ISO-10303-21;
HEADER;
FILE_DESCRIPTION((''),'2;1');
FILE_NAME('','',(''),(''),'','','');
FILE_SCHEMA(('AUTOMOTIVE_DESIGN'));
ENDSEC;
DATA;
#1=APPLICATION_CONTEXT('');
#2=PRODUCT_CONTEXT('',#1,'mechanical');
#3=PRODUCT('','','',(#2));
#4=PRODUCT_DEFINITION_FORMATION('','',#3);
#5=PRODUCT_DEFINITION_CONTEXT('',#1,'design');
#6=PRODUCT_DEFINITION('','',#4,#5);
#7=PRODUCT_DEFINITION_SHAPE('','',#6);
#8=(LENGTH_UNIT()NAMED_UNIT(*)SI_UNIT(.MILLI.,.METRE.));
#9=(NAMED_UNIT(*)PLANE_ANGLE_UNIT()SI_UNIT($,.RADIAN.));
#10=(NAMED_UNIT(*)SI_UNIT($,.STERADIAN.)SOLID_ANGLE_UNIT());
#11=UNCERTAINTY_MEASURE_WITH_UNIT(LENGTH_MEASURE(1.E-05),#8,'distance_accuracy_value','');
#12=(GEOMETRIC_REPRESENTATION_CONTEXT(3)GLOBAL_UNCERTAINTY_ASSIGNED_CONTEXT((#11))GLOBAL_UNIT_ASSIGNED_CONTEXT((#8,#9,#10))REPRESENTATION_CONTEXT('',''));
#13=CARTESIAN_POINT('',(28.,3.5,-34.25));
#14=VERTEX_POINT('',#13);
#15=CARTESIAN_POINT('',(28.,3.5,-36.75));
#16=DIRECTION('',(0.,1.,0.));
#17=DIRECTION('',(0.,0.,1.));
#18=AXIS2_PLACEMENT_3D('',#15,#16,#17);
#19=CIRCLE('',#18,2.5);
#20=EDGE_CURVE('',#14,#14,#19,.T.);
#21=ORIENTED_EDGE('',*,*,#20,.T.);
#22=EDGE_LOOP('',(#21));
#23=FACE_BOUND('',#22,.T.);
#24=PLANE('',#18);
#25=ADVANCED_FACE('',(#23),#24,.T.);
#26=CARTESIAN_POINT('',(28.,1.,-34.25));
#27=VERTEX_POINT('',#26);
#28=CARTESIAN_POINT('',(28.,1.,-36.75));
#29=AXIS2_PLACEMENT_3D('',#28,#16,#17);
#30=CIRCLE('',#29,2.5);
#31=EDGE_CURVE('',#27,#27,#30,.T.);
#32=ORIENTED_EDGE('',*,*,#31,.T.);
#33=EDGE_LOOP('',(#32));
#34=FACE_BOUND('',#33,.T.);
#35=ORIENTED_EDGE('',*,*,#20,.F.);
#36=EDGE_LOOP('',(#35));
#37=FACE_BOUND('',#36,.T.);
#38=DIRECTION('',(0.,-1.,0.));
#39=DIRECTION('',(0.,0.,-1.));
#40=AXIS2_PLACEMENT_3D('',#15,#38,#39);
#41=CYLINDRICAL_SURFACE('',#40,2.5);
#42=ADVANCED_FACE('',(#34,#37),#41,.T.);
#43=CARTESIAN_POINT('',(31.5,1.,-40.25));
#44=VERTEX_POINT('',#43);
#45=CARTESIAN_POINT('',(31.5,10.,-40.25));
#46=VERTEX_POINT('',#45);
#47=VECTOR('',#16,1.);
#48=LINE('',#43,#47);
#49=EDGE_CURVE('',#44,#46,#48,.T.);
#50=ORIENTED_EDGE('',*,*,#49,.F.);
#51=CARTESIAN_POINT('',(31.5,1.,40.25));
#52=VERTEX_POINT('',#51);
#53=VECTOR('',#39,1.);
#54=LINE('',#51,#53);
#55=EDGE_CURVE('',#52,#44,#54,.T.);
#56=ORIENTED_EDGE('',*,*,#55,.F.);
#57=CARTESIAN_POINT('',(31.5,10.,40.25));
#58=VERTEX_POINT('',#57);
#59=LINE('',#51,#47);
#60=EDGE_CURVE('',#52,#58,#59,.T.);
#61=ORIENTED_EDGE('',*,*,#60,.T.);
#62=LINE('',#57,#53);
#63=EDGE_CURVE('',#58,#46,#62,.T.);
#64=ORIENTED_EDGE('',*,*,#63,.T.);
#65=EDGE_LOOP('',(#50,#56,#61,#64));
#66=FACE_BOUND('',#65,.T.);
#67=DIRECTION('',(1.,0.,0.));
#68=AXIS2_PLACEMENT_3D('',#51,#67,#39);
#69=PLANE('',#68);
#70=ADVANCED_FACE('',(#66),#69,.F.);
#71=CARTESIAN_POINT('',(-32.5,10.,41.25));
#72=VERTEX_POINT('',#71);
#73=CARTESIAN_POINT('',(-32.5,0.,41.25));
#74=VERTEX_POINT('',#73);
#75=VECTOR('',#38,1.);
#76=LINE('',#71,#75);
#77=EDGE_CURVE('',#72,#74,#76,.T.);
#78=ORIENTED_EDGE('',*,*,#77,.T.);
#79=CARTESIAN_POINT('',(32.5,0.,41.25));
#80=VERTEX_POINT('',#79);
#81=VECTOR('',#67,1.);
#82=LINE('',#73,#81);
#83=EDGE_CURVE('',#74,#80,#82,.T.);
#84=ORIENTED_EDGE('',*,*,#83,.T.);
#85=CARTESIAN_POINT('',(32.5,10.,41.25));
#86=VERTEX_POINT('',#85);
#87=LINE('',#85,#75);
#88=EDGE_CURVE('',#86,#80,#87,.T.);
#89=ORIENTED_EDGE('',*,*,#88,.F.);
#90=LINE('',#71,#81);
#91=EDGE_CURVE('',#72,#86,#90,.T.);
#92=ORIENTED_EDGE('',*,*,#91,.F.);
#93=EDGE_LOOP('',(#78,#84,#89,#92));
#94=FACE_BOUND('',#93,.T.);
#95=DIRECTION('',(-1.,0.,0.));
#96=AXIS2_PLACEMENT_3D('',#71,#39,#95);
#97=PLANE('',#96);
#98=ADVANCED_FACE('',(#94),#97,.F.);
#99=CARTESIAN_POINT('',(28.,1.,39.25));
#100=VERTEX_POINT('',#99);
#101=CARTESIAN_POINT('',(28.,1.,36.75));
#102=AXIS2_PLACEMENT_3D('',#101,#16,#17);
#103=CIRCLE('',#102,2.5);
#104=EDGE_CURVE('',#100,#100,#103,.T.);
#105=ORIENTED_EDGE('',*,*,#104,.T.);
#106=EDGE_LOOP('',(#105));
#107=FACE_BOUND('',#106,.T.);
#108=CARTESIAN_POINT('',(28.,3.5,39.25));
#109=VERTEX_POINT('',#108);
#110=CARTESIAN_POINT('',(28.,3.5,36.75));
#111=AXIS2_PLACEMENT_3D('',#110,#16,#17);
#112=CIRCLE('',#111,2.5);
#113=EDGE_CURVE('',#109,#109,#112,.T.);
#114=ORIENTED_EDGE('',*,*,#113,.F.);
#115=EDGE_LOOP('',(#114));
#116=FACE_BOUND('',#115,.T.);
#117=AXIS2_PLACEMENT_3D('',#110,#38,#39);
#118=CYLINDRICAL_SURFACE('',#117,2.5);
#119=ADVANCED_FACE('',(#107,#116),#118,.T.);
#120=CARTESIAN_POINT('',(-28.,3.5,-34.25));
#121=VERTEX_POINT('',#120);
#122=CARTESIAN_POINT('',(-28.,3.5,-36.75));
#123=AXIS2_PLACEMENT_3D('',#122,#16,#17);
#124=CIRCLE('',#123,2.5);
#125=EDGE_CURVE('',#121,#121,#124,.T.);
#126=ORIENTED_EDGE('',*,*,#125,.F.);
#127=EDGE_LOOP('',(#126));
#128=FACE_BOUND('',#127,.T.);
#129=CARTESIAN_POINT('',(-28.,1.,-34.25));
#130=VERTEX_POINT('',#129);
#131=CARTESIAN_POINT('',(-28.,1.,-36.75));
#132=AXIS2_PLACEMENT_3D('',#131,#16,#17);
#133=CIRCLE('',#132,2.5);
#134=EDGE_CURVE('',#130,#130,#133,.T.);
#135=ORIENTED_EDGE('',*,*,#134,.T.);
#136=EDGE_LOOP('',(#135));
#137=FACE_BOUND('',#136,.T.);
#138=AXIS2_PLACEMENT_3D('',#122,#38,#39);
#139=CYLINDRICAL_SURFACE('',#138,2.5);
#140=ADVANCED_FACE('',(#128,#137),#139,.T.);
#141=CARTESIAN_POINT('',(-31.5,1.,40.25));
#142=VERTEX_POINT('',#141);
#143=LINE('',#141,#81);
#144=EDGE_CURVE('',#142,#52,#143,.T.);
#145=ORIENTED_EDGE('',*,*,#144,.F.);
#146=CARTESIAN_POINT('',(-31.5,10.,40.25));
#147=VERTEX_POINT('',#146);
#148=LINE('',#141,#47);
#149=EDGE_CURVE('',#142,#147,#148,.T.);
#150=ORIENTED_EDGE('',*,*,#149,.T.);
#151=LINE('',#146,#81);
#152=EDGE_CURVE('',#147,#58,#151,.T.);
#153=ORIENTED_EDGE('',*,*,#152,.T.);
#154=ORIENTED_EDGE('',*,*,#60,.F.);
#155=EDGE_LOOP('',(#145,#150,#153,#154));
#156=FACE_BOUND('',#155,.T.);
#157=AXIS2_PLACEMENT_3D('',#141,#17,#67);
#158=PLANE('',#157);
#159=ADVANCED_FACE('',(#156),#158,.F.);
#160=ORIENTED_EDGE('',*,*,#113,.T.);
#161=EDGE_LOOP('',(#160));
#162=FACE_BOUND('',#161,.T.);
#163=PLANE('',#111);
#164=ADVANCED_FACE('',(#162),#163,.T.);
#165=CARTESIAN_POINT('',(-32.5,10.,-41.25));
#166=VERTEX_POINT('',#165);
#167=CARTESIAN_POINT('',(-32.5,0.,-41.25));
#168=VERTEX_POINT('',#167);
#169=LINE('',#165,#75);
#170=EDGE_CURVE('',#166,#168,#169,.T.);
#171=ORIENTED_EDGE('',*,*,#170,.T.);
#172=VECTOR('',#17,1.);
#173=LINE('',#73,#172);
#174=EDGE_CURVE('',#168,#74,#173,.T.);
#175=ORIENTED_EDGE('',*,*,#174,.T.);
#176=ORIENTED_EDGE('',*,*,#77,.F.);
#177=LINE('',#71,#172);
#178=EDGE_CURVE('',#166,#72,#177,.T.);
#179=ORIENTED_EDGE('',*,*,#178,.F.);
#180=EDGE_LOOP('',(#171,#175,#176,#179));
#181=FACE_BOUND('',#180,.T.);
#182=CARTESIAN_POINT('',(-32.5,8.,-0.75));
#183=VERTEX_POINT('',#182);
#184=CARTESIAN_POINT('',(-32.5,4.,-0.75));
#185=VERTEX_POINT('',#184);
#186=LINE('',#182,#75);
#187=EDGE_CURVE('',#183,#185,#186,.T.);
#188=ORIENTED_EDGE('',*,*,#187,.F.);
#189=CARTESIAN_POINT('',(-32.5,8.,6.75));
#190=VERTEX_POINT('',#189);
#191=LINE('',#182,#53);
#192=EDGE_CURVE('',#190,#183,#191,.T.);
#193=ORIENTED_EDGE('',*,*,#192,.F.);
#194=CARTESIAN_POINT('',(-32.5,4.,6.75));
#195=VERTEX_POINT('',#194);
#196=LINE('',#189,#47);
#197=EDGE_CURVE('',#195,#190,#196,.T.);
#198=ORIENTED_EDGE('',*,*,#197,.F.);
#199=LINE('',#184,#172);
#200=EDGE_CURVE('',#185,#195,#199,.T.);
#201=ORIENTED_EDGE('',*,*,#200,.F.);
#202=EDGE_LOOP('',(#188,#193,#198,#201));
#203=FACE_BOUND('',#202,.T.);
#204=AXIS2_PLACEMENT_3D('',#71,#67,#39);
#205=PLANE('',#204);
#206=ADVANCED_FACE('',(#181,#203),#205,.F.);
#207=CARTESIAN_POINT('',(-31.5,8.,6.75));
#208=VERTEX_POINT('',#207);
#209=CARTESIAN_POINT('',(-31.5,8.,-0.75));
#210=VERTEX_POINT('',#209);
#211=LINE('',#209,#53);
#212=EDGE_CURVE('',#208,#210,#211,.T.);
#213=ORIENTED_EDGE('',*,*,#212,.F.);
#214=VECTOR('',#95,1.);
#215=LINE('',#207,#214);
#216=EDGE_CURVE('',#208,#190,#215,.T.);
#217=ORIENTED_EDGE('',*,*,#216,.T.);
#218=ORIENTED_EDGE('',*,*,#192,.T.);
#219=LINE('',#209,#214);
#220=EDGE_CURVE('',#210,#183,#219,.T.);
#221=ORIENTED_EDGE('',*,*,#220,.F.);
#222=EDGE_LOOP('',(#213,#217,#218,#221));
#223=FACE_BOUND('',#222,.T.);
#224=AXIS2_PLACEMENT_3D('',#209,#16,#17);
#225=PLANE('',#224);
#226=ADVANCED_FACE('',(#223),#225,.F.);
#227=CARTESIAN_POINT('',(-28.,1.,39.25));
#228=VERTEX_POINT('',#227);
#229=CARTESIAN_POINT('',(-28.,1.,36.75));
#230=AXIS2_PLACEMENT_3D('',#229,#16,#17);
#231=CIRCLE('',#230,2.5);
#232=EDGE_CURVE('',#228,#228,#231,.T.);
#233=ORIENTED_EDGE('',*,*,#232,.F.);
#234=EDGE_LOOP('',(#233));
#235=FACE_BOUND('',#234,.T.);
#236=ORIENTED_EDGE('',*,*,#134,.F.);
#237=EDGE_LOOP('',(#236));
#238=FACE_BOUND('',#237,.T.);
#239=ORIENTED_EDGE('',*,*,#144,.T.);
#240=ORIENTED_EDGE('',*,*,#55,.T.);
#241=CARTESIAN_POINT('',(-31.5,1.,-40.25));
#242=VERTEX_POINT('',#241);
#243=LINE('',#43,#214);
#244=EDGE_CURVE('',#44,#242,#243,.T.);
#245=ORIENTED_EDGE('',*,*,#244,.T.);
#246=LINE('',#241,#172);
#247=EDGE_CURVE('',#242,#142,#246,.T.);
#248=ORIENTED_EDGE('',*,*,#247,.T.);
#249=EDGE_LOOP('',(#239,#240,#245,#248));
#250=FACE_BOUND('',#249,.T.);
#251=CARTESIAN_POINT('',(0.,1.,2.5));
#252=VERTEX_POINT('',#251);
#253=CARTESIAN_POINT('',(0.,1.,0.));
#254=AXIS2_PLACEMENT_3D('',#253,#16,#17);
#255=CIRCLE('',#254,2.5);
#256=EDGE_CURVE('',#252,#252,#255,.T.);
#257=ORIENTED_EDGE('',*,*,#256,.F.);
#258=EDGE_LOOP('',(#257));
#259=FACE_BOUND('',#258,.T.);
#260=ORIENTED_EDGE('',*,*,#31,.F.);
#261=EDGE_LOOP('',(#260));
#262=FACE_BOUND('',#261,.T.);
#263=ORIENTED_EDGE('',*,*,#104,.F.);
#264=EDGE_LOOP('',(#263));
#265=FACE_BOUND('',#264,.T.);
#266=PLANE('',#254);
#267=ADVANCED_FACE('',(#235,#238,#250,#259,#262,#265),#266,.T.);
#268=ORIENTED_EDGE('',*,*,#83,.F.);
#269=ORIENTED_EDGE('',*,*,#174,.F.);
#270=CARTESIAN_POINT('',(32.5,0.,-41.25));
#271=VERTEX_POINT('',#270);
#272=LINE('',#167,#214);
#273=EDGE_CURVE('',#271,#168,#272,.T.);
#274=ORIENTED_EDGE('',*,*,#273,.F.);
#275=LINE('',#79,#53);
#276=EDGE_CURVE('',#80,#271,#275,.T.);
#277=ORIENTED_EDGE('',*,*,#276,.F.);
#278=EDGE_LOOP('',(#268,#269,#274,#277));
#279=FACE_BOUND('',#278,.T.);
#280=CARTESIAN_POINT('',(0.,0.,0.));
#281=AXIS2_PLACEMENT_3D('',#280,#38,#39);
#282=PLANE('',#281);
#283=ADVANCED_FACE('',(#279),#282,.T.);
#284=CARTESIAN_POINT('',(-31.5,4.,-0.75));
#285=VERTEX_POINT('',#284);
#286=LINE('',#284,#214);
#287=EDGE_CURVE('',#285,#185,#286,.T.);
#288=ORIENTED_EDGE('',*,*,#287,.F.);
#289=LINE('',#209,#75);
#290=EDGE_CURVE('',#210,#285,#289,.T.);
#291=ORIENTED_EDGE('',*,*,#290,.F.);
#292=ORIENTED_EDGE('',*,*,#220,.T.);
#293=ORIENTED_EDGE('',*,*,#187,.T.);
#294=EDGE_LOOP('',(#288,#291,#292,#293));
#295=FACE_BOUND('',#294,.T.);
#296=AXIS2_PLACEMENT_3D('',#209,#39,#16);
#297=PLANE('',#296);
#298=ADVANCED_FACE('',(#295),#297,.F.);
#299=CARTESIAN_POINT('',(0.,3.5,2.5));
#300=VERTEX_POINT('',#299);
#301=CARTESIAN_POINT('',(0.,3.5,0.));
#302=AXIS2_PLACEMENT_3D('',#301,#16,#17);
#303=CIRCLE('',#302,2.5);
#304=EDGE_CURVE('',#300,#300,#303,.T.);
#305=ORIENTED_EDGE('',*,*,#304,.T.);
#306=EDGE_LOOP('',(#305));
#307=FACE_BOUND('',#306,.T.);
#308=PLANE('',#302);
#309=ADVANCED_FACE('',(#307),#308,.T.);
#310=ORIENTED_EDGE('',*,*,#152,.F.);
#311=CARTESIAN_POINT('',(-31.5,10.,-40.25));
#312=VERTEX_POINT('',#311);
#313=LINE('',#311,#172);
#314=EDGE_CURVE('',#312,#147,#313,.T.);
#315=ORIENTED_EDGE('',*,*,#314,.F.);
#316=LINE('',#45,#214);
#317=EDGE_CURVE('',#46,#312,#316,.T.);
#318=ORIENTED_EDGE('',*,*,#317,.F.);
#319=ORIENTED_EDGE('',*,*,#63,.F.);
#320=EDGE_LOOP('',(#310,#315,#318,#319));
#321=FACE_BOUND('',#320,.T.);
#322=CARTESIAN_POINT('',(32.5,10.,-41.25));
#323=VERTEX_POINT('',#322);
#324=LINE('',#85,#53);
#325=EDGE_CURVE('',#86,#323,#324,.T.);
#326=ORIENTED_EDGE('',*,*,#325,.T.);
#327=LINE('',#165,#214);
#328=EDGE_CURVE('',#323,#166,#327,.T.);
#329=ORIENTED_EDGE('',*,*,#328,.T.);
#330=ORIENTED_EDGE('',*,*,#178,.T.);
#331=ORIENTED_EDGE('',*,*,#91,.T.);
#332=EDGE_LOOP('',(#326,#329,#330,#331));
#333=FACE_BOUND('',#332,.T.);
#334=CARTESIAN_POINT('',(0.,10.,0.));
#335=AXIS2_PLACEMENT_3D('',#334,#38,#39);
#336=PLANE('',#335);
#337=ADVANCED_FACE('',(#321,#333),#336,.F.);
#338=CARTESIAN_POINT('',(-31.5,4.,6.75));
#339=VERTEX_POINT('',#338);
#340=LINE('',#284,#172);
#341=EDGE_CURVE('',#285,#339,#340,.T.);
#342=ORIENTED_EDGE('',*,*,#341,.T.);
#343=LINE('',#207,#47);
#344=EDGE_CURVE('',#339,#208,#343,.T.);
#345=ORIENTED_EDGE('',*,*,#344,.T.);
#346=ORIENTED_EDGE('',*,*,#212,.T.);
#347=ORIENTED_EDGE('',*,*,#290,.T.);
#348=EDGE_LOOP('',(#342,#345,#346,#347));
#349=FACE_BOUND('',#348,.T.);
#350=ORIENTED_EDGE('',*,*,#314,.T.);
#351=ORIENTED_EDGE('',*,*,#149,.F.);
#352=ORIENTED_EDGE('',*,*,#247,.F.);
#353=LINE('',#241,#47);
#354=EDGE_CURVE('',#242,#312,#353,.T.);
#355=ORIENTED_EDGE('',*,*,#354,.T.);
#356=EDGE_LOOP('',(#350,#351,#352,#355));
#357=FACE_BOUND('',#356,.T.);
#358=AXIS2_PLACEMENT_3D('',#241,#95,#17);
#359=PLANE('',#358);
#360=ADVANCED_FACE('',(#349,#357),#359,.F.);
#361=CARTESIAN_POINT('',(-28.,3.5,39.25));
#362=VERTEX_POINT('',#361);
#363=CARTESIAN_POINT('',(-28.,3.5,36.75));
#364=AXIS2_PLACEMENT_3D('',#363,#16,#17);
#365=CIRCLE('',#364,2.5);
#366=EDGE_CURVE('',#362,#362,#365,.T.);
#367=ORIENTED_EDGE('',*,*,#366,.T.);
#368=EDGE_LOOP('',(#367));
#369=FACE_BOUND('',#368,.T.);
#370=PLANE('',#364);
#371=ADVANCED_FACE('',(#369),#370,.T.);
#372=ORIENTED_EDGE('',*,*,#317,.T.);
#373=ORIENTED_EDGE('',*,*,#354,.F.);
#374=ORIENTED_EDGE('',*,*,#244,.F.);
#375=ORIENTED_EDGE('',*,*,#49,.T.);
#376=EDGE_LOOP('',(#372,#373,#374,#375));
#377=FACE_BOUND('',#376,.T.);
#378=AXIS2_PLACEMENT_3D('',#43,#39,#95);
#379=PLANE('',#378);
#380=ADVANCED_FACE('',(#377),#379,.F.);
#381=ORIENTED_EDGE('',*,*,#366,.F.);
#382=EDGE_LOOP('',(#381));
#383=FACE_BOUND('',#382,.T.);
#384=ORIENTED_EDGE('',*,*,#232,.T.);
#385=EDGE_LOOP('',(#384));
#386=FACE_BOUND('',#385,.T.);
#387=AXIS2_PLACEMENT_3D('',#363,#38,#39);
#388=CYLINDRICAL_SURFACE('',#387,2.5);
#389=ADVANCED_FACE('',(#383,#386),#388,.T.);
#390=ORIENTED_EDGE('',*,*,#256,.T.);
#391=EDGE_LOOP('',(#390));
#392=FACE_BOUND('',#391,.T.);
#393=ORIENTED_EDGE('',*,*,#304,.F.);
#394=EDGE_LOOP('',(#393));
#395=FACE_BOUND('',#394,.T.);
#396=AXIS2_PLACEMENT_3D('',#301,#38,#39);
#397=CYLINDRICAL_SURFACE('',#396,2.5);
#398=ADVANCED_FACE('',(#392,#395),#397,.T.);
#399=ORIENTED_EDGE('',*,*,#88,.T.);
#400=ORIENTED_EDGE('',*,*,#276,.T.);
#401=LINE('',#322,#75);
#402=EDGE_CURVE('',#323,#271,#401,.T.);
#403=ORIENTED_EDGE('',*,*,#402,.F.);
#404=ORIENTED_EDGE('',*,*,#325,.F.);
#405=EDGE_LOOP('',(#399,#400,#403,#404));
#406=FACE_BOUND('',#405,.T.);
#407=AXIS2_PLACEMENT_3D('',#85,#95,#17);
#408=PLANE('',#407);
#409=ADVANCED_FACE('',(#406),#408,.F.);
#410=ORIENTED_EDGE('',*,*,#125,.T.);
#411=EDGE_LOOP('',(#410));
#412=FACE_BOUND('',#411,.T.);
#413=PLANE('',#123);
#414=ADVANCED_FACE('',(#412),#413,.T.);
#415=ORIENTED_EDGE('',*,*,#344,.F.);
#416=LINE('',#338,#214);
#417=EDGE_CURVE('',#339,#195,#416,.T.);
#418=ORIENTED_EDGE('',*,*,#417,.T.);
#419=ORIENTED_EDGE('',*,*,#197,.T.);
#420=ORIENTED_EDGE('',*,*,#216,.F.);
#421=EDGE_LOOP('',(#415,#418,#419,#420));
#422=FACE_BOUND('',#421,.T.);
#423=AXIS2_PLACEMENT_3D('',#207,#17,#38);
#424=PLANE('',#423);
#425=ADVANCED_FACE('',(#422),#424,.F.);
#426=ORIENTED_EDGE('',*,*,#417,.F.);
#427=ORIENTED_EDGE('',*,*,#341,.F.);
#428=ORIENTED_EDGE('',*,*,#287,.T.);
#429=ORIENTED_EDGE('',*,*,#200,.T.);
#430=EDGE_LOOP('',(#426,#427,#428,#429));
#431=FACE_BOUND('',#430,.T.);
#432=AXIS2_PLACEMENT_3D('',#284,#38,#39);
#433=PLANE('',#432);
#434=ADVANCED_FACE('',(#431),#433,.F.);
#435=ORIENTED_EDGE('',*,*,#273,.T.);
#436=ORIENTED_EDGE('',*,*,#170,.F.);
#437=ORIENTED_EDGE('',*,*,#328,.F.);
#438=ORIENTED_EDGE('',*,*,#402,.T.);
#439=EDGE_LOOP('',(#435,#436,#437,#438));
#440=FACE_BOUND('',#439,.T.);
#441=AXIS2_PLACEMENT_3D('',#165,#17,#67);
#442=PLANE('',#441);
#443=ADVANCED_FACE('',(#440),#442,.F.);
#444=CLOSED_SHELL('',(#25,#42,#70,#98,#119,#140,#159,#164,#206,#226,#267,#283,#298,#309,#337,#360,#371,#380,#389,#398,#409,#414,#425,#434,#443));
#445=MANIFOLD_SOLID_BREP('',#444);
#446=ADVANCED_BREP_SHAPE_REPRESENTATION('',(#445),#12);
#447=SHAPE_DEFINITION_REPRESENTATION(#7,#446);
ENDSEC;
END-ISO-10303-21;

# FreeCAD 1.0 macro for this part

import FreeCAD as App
import Part
import Sketcher

V = App.Vector
Q = App.Units.Quantity

doc = App.newDocument("Part")
body = doc.addObject("PartDesign::Body", "Body")

sketch1 = body.newObject("Sketcher::SketchObject", "Sketch")
sketch1.AttachmentSupport = (doc.getObject("XZ_Plane"), [""])
sketch1.MapMode = "FlatFace"
sketch1.addGeometry([
    Part.LineSegment(V(-32, -41, 0), V(-32, 41, 0)),
    Part.LineSegment(V(-32, 41, 0), V(32, 41, 0)),
    Part.LineSegment(V(32, 41, 0), V(32, -41, 0)),
    Part.LineSegment(V(32, -41, 0), V(-32, -41, 0)),
], False)
sketch1.addConstraint([
    Sketcher.Constraint("Coincident", 0, 2, 1, 1),
    Sketcher.Constraint("Coincident", 1, 2, 2, 1),
    Sketcher.Constraint("Coincident", 2, 2, 3, 1),
    Sketcher.Constraint("Coincident", 3, 2, 0, 1),
    Sketcher.Constraint("Vertical", 0),
    Sketcher.Constraint("Horizontal", 1),
    Sketcher.Constraint("Vertical", 2),
    Sketcher.Constraint("Horizontal", 3),
    Sketcher.Constraint("Symmetric", 0, 2, 2, 2, -1, 1),
    Sketcher.Constraint("DistanceX", 1, 1, 1, 2, Q("65 mm")),
    Sketcher.Constraint("DistanceY", 0, 1, 0, 2, Q("82.5 mm")),
])
pad1 = body.newObject("PartDesign::Pad", "Pad")
pad1.Profile = sketch1
pad1.Length = 10
pad1.Reversed = True

sketch2 = body.newObject("Sketcher::SketchObject", "Sketch001")
sketch2.AttachmentSupport = (doc.getObject("XZ_Plane"), [""])
sketch2.MapMode = "FlatFace"
sketch2.AttachmentOffset = App.Placement(V(0, 0, -10), App.Rotation())
sketch2.addGeometry([
    Part.LineSegment(V(-32, -40, 0), V(-32, 40, 0)),
    Part.LineSegment(V(-32, 40, 0), V(32, 40, 0)),
    Part.LineSegment(V(32, 40, 0), V(32, -40, 0)),
    Part.LineSegment(V(32, -40, 0), V(-32, -40, 0)),
], False)
sketch2.addConstraint([
    Sketcher.Constraint("Coincident", 0, 2, 1, 1),
    Sketcher.Constraint("Coincident", 1, 2, 2, 1),
    Sketcher.Constraint("Coincident", 2, 2, 3, 1),
    Sketcher.Constraint("Coincident", 3, 2, 0, 1),
    Sketcher.Constraint("Vertical", 0),
    Sketcher.Constraint("Horizontal", 1),
    Sketcher.Constraint("Vertical", 2),
    Sketcher.Constraint("Horizontal", 3),
    Sketcher.Constraint("Symmetric", 0, 2, 2, 2, -1, 1),
    Sketcher.Constraint("DistanceX", 1, 1, 1, 2, Q("63 mm")),
    Sketcher.Constraint("DistanceY", 0, 1, 0, 2, Q("80.5 mm")),
])
pocket1 = body.newObject("PartDesign::Pocket", "Pocket")
pocket1.Profile = sketch2
pocket1.Length = 9
pocket1.Reversed = True

sketch3 = body.newObject("Sketcher::SketchObject", "Sketch002")
sketch3.AttachmentSupport = (doc.getObject("XZ_Plane"), [""])
sketch3.MapMode = "FlatFace"
sketch3.AttachmentOffset = App.Placement(V(0, 0, -1), App.Rotation())
sketch3.addGeometry([
    Part.Circle(V(-28, -36.8, 0), V(0, 0, 1), 2.5),
    Part.Circle(V(28, -36.8, 0), V(0, 0, 1), 2.5),
    Part.Circle(V(-28, 36.8, 0), V(0, 0, 1), 2.5),
    Part.Circle(V(28, 36.8, 0), V(0, 0, 1), 2.5),
    Part.Circle(V(0, 0, 0), V(0, 0, 1), 2.5),
], False)
sketch3.addConstraint([
    Sketcher.Constraint("Coincident", 4, 3, -1, 1),
    Sketcher.Constraint("Equal", 0, 1),
    Sketcher.Constraint("Equal", 1, 2),
    Sketcher.Constraint("Equal", 2, 3),
    Sketcher.Constraint("Equal", 3, 4),
    Sketcher.Constraint("Symmetric", 1, 3, 2, 3, -1, 1),
    Sketcher.Constraint("Symmetric", 0, 3, 3, 3, -1, 1),
    Sketcher.Constraint("Symmetric", 0, 3, 1, 3, -2),
    Sketcher.Constraint("Diameter", 0, Q("5 mm")),
    Sketcher.Constraint("DistanceX", 0, 3, -1, 1, Q("28 mm")),
    Sketcher.Constraint("DistanceY", 0, 3, 2, 3, Q("73.5 mm")),
])
pad2 = body.newObject("PartDesign::Pad", "Pad001")
pad2.Profile = sketch3
pad2.Length = 2.5
pad2.Reversed = True

sketch4 = body.newObject("Sketcher::SketchObject", "Sketch003")
sketch4.AttachmentSupport = (doc.getObject("YZ_Plane"), [""])
sketch4.MapMode = "FlatFace"
sketch4.AttachmentOffset = App.Placement(V(0, 0, -32.5), App.Rotation())
sketch4.addGeometry([
    Part.LineSegment(V(8, -0.8, 0), V(4, -0.8, 0)),
    Part.LineSegment(V(4, -0.8, 0), V(4, 6.8, 0)),
    Part.LineSegment(V(4, 6.8, 0), V(8, 6.8, 0)),
    Part.LineSegment(V(8, 6.8, 0), V(8, -0.8, 0)),
], False)
sketch4.addConstraint([
    Sketcher.Constraint("Coincident", 0, 2, 1, 1),
    Sketcher.Constraint("Coincident", 1, 2, 2, 1),
    Sketcher.Constraint("Coincident", 2, 2, 3, 1),
    Sketcher.Constraint("Coincident", 3, 2, 0, 1),
    Sketcher.Constraint("Horizontal", 0),
    Sketcher.Constraint("Vertical", 1),
    Sketcher.Constraint("Horizontal", 2),
    Sketcher.Constraint("Vertical", 3),
    Sketcher.Constraint("DistanceX", 0, 2, 0, 1, Q("4 mm")),
    Sketcher.Constraint("DistanceY", 1, 1, 1, 2, Q("7.5 mm")),
    Sketcher.Constraint("DistanceX", -1, 1, 0, 2, Q("4 mm")),
    Sketcher.Constraint("DistanceY", 0, 2, -1, 1, Q("0.75 mm")),
])
pocket2 = body.newObject("PartDesign::Pocket", "Pocket001")
pocket2.Profile = sketch4
pocket2.Length = 1
pocket2.Reversed = True

doc.recompute()
